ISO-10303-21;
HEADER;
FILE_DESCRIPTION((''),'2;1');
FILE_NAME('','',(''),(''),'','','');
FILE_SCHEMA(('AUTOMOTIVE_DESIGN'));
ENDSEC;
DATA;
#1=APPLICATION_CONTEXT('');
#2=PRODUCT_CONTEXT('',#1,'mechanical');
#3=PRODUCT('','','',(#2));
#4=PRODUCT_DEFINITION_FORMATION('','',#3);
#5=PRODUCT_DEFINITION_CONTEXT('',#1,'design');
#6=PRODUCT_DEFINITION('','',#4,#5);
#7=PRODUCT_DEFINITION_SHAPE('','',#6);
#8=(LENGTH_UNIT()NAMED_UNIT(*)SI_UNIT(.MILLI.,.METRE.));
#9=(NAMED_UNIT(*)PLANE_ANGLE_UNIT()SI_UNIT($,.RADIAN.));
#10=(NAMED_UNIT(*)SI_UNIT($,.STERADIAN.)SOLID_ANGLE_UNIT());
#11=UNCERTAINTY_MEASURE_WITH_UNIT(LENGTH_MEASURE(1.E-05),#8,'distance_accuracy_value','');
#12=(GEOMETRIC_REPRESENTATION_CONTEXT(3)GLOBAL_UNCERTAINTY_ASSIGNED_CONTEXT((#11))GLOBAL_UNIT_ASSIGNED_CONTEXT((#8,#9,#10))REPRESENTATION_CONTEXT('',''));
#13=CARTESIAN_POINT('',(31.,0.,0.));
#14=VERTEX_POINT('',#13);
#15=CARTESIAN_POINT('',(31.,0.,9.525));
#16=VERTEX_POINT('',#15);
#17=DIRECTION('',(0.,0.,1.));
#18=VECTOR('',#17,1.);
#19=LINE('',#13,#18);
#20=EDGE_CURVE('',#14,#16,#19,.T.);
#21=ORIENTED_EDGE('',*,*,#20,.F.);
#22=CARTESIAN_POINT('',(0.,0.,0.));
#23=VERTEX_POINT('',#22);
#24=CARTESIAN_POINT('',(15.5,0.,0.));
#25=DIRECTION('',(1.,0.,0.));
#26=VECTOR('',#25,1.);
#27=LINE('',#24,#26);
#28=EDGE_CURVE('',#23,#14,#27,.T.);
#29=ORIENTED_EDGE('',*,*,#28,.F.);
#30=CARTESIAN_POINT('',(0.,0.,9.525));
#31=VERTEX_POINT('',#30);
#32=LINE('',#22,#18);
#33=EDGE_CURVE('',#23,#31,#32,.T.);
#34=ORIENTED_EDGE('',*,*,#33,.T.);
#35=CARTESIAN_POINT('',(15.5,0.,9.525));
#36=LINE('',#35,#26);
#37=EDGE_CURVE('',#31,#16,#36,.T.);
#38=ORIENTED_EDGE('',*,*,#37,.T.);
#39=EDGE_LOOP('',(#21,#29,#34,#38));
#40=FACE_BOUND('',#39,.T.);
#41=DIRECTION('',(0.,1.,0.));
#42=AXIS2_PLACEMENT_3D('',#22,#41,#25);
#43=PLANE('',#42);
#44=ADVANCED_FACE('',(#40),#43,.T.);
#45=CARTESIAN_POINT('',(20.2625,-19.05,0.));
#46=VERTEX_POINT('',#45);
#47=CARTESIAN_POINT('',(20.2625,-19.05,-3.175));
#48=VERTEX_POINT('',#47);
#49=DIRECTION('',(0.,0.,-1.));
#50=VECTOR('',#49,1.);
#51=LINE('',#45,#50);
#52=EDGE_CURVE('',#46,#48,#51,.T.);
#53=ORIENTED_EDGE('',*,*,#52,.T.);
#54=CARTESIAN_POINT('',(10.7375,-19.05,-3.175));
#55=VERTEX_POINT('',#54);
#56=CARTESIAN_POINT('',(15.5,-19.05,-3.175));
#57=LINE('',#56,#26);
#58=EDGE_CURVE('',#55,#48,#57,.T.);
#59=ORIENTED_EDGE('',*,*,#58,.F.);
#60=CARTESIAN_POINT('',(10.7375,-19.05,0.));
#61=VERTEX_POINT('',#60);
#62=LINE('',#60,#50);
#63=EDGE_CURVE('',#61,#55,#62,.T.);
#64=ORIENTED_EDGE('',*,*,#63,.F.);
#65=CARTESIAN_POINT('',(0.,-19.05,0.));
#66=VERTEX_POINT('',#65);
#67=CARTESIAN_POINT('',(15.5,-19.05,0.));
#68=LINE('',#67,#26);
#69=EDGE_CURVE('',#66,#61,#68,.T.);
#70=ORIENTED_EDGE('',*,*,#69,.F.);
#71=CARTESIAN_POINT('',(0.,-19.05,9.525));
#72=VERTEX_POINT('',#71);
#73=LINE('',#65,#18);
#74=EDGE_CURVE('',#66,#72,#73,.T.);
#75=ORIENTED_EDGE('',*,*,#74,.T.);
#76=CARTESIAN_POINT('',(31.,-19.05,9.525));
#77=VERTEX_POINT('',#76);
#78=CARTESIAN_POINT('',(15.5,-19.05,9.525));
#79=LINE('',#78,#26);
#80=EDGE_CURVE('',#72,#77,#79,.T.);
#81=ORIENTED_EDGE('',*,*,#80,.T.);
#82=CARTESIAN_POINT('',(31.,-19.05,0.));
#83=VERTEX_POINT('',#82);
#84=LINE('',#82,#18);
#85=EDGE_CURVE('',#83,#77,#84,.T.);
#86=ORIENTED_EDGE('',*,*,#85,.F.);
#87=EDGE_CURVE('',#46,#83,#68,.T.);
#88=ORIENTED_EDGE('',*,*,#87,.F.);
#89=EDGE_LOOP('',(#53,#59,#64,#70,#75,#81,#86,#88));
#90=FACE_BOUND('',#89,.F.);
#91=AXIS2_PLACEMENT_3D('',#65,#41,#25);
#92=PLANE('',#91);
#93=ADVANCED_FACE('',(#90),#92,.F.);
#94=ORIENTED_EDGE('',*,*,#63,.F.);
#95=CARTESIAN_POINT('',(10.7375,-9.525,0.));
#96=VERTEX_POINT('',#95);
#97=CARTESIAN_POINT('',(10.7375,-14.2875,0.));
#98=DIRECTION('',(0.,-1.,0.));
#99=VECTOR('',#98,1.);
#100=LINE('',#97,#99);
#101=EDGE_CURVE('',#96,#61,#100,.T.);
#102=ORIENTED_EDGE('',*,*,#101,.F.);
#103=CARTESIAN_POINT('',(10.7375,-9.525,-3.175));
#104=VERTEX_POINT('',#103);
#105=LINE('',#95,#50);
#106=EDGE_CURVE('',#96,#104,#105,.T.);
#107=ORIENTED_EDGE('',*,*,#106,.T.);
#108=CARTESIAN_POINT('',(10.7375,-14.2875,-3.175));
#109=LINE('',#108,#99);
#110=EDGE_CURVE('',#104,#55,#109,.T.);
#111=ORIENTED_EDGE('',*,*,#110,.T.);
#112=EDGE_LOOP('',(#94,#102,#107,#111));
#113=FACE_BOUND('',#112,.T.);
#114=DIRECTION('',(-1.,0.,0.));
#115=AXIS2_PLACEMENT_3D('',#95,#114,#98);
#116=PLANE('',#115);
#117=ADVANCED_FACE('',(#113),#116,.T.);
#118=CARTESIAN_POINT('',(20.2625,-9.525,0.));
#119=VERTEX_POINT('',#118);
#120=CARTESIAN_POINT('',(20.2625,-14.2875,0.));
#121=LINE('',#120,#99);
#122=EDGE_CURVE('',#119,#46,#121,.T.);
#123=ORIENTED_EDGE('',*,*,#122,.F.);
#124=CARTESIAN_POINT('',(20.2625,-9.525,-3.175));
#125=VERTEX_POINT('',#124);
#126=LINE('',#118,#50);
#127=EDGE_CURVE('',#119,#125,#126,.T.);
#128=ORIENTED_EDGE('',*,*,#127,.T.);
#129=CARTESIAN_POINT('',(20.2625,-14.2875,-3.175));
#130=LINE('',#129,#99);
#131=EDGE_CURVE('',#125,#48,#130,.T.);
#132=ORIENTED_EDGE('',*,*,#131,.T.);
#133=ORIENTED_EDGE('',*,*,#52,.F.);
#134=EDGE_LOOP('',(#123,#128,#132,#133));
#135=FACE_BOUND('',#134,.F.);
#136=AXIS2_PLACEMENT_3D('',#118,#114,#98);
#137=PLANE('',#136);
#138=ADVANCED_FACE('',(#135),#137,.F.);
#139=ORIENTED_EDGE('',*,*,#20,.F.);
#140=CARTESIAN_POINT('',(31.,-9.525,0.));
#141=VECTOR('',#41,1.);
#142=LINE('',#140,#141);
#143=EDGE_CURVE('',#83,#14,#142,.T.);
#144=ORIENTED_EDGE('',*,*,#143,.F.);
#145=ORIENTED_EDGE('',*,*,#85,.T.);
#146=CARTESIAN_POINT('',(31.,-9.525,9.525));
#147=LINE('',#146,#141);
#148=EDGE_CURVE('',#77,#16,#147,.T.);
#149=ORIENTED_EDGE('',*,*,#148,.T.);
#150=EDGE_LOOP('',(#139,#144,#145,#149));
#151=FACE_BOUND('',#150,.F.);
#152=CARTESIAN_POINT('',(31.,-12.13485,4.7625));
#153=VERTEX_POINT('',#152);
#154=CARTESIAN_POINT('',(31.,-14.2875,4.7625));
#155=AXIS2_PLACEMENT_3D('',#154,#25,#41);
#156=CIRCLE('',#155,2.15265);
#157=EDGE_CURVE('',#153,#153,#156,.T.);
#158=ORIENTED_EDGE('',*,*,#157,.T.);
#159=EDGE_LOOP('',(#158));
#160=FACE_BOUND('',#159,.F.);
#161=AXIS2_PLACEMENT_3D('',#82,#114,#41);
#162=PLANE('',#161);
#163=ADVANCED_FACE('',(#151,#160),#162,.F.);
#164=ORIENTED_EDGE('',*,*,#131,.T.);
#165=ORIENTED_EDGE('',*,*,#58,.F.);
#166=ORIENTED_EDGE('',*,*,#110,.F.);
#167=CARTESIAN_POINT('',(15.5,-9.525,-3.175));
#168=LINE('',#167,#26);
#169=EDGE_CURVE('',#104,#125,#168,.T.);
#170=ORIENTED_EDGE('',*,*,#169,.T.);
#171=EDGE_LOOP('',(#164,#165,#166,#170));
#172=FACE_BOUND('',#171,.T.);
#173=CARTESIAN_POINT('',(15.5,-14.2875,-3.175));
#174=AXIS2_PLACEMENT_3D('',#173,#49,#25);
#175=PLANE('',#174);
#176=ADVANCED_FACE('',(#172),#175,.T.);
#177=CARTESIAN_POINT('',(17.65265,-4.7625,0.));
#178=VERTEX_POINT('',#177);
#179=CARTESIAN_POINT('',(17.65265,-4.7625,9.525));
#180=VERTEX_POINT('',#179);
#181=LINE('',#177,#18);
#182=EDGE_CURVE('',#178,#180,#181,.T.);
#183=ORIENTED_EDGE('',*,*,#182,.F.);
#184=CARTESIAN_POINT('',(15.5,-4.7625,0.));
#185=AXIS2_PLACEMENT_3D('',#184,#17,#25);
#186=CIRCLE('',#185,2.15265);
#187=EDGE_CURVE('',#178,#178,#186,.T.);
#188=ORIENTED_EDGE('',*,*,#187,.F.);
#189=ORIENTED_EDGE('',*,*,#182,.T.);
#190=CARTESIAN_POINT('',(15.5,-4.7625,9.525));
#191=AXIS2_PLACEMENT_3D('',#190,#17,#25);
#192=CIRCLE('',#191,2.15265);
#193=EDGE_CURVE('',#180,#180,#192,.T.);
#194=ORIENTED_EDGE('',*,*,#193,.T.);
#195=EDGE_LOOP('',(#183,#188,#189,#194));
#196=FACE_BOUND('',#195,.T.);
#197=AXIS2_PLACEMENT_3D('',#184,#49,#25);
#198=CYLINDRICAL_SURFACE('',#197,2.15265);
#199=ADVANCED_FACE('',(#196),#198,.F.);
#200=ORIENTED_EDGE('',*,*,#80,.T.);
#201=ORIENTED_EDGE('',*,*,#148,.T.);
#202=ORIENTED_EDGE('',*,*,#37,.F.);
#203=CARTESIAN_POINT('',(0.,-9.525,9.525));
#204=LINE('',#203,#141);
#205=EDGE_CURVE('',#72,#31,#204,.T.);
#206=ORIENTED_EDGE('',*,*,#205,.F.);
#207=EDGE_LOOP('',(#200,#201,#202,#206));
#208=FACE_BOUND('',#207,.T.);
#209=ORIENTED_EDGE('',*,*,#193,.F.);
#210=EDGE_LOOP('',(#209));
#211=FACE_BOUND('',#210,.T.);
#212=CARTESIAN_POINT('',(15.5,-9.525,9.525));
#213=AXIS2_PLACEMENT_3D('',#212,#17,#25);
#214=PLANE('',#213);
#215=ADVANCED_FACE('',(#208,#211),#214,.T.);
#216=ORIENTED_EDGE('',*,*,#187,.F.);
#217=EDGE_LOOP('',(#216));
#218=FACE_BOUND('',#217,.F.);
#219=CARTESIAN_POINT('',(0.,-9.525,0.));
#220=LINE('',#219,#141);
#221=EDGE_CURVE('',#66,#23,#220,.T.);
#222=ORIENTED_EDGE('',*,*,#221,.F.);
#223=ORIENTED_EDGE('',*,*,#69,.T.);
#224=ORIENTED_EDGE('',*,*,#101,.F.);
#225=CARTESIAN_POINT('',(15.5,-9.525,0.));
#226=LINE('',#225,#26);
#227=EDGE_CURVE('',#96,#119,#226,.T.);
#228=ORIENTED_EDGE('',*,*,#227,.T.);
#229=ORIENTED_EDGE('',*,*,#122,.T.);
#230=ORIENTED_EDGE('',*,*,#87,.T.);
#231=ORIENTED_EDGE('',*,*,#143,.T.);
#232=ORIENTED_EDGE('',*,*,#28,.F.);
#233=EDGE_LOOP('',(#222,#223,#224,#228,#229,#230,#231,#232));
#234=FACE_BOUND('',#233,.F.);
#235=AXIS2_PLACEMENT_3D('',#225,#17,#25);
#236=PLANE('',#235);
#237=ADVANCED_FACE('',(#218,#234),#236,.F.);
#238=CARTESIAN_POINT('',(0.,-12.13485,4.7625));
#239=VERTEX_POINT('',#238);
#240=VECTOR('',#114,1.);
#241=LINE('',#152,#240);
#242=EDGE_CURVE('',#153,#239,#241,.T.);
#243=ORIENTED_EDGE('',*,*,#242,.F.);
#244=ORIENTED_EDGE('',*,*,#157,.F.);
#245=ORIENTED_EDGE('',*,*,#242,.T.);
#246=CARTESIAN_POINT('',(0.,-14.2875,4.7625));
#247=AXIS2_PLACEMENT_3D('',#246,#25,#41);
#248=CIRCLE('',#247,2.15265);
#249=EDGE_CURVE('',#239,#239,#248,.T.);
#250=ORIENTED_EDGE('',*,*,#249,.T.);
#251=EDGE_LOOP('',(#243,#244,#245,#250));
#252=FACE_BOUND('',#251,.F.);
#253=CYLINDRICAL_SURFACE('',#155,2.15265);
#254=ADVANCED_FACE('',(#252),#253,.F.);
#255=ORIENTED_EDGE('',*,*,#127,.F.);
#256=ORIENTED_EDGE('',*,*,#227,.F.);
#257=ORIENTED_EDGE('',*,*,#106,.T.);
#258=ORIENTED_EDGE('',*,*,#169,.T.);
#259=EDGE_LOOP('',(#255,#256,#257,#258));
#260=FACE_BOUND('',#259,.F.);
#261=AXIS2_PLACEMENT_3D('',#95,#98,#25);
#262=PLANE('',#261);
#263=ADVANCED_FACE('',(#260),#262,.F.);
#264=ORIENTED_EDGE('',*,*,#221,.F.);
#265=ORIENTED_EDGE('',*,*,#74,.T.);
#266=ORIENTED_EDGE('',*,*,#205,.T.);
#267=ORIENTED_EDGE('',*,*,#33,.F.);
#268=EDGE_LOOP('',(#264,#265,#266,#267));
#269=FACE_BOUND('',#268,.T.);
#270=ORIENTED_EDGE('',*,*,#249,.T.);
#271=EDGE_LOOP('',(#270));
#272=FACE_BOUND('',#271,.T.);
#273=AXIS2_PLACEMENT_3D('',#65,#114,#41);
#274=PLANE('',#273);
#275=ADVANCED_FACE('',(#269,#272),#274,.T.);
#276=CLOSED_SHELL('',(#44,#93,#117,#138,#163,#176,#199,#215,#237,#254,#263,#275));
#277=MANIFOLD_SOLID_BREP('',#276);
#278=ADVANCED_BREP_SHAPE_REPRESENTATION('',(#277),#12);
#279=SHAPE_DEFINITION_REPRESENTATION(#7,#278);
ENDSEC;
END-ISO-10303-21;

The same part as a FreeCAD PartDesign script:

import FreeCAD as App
import Part
import Sketcher
Q = App.Units.Quantity

doc = App.newDocument("Part")
body = doc.addObject("PartDesign::Body", "Body")

sketch1 = body.newObject("Sketcher::SketchObject", "Sketch")
sketch1.AttachmentSupport = (doc.getObject("XY_Plane"), [""])
sketch1.MapMode = "FlatFace"
sketch1.addGeometry([
    Part.LineSegment(App.Vector(0, 0, 0), App.Vector(0, -19.1, 0)),
    Part.LineSegment(App.Vector(0, -19.1, 0), App.Vector(31, -19.1, 0)),
    Part.LineSegment(App.Vector(31, -19.1, 0), App.Vector(31, 0, 0)),
    Part.LineSegment(App.Vector(31, 0, 0), App.Vector(0, 0, 0)),
    Part.Circle(App.Vector(15.5, -4.8, 0), App.Vector(0, 0, 1), 2.2),
], False)
sketch1.addConstraint([
    Sketcher.Constraint("Coincident", 0, 2, 1, 1),
    Sketcher.Constraint("Coincident", 1, 2, 2, 1),
    Sketcher.Constraint("Coincident", 2, 2, 3, 1),
    Sketcher.Constraint("Coincident", 3, 2, 0, 1),
    Sketcher.Constraint("Vertical", 0),
    Sketcher.Constraint("Horizontal", 1),
    Sketcher.Constraint("Vertical", 2),
    Sketcher.Constraint("Horizontal", 3),
    Sketcher.Constraint("Coincident", 3, 2, -1, 1),
    Sketcher.Constraint("Diameter", 4, Q("0.1695 in")),
    Sketcher.Constraint("DistanceY", 0, 2, 0, 1, Q("0.75 in")),
    Sketcher.Constraint("DistanceY", 4, 3, -1, 1, Q("0.1875 in")),
    Sketcher.Constraint("DistanceX", 1, 1, 1, 2, 31.0),
    Sketcher.Constraint("DistanceX", -1, 1, 4, 3, 15.5),
])
pad1 = body.newObject("PartDesign::Pad", "Pad")
pad1.Profile = sketch1
pad1.Length = Q("0.375 in")

sketch2 = body.newObject("Sketcher::SketchObject", "Sketch001")
sketch2.AttachmentSupport = (doc.getObject("YZ_Plane"), [""])
sketch2.MapMode = "FlatFace"
sketch2.AttachmentOffset = App.Placement(App.Vector(0, 0, 31), App.Rotation())
sketch2.addGeometry(Part.Circle(App.Vector(-14.3, 4.8, 0), App.Vector(0, 0, 1), 2.2), False)
sketch2.addConstraint([
    Sketcher.Constraint("Diameter", 0, Q("0.1695 in")),
    Sketcher.Constraint("DistanceX", 0, 3, -1, 1, Q("0.5625 in")),
    Sketcher.Constraint("DistanceY", -1, 1, 0, 3, Q("0.1875 in")),
])
pocket1 = body.newObject("PartDesign::Pocket", "Pocket")
pocket1.Profile = sketch2
pocket1.Type = "ThroughAll"

sketch3 = body.newObject("Sketcher::SketchObject", "Sketch002")
sketch3.AttachmentSupport = (doc.getObject("XY_Plane"), [""])
sketch3.MapMode = "FlatFace"
sketch3.addGeometry([
    Part.LineSegment(App.Vector(11, -19, 0), App.Vector(11, -10, 0)),
    Part.LineSegment(App.Vector(11, -10, 0), App.Vector(20, -10, 0)),
    Part.LineSegment(App.Vector(20, -10, 0), App.Vector(20, -19, 0)),
    Part.LineSegment(App.Vector(20, -19, 0), App.Vector(11, -19, 0)),
], False)
sketch3.addConstraint([
    Sketcher.Constraint("Coincident", 0, 2, 1, 1),
    Sketcher.Constraint("Coincident", 1, 2, 2, 1),
    Sketcher.Constraint("Coincident", 2, 2, 3, 1),
    Sketcher.Constraint("Coincident", 3, 2, 0, 1),
    Sketcher.Constraint("Vertical", 0),
    Sketcher.Constraint("Horizontal", 1),
    Sketcher.Constraint("Vertical", 2),
    Sketcher.Constraint("Horizontal", 3),
    Sketcher.Constraint("Equal", 3, 0),
    Sketcher.Constraint("DistanceX", 1, 1, 1, 2, Q("0.375 in")),
    Sketcher.Constraint("DistanceY", 2, 2, -1, 1, Q("0.75 in")),
    Sketcher.Constraint("DistanceX", -1, 1, 0, 2, 10.7375),
])
pad2 = body.newObject("PartDesign::Pad", "Pad001")
pad2.Profile = sketch3
pad2.Length = Q("0.125 in")
pad2.Reversed = True

doc.recompute()
